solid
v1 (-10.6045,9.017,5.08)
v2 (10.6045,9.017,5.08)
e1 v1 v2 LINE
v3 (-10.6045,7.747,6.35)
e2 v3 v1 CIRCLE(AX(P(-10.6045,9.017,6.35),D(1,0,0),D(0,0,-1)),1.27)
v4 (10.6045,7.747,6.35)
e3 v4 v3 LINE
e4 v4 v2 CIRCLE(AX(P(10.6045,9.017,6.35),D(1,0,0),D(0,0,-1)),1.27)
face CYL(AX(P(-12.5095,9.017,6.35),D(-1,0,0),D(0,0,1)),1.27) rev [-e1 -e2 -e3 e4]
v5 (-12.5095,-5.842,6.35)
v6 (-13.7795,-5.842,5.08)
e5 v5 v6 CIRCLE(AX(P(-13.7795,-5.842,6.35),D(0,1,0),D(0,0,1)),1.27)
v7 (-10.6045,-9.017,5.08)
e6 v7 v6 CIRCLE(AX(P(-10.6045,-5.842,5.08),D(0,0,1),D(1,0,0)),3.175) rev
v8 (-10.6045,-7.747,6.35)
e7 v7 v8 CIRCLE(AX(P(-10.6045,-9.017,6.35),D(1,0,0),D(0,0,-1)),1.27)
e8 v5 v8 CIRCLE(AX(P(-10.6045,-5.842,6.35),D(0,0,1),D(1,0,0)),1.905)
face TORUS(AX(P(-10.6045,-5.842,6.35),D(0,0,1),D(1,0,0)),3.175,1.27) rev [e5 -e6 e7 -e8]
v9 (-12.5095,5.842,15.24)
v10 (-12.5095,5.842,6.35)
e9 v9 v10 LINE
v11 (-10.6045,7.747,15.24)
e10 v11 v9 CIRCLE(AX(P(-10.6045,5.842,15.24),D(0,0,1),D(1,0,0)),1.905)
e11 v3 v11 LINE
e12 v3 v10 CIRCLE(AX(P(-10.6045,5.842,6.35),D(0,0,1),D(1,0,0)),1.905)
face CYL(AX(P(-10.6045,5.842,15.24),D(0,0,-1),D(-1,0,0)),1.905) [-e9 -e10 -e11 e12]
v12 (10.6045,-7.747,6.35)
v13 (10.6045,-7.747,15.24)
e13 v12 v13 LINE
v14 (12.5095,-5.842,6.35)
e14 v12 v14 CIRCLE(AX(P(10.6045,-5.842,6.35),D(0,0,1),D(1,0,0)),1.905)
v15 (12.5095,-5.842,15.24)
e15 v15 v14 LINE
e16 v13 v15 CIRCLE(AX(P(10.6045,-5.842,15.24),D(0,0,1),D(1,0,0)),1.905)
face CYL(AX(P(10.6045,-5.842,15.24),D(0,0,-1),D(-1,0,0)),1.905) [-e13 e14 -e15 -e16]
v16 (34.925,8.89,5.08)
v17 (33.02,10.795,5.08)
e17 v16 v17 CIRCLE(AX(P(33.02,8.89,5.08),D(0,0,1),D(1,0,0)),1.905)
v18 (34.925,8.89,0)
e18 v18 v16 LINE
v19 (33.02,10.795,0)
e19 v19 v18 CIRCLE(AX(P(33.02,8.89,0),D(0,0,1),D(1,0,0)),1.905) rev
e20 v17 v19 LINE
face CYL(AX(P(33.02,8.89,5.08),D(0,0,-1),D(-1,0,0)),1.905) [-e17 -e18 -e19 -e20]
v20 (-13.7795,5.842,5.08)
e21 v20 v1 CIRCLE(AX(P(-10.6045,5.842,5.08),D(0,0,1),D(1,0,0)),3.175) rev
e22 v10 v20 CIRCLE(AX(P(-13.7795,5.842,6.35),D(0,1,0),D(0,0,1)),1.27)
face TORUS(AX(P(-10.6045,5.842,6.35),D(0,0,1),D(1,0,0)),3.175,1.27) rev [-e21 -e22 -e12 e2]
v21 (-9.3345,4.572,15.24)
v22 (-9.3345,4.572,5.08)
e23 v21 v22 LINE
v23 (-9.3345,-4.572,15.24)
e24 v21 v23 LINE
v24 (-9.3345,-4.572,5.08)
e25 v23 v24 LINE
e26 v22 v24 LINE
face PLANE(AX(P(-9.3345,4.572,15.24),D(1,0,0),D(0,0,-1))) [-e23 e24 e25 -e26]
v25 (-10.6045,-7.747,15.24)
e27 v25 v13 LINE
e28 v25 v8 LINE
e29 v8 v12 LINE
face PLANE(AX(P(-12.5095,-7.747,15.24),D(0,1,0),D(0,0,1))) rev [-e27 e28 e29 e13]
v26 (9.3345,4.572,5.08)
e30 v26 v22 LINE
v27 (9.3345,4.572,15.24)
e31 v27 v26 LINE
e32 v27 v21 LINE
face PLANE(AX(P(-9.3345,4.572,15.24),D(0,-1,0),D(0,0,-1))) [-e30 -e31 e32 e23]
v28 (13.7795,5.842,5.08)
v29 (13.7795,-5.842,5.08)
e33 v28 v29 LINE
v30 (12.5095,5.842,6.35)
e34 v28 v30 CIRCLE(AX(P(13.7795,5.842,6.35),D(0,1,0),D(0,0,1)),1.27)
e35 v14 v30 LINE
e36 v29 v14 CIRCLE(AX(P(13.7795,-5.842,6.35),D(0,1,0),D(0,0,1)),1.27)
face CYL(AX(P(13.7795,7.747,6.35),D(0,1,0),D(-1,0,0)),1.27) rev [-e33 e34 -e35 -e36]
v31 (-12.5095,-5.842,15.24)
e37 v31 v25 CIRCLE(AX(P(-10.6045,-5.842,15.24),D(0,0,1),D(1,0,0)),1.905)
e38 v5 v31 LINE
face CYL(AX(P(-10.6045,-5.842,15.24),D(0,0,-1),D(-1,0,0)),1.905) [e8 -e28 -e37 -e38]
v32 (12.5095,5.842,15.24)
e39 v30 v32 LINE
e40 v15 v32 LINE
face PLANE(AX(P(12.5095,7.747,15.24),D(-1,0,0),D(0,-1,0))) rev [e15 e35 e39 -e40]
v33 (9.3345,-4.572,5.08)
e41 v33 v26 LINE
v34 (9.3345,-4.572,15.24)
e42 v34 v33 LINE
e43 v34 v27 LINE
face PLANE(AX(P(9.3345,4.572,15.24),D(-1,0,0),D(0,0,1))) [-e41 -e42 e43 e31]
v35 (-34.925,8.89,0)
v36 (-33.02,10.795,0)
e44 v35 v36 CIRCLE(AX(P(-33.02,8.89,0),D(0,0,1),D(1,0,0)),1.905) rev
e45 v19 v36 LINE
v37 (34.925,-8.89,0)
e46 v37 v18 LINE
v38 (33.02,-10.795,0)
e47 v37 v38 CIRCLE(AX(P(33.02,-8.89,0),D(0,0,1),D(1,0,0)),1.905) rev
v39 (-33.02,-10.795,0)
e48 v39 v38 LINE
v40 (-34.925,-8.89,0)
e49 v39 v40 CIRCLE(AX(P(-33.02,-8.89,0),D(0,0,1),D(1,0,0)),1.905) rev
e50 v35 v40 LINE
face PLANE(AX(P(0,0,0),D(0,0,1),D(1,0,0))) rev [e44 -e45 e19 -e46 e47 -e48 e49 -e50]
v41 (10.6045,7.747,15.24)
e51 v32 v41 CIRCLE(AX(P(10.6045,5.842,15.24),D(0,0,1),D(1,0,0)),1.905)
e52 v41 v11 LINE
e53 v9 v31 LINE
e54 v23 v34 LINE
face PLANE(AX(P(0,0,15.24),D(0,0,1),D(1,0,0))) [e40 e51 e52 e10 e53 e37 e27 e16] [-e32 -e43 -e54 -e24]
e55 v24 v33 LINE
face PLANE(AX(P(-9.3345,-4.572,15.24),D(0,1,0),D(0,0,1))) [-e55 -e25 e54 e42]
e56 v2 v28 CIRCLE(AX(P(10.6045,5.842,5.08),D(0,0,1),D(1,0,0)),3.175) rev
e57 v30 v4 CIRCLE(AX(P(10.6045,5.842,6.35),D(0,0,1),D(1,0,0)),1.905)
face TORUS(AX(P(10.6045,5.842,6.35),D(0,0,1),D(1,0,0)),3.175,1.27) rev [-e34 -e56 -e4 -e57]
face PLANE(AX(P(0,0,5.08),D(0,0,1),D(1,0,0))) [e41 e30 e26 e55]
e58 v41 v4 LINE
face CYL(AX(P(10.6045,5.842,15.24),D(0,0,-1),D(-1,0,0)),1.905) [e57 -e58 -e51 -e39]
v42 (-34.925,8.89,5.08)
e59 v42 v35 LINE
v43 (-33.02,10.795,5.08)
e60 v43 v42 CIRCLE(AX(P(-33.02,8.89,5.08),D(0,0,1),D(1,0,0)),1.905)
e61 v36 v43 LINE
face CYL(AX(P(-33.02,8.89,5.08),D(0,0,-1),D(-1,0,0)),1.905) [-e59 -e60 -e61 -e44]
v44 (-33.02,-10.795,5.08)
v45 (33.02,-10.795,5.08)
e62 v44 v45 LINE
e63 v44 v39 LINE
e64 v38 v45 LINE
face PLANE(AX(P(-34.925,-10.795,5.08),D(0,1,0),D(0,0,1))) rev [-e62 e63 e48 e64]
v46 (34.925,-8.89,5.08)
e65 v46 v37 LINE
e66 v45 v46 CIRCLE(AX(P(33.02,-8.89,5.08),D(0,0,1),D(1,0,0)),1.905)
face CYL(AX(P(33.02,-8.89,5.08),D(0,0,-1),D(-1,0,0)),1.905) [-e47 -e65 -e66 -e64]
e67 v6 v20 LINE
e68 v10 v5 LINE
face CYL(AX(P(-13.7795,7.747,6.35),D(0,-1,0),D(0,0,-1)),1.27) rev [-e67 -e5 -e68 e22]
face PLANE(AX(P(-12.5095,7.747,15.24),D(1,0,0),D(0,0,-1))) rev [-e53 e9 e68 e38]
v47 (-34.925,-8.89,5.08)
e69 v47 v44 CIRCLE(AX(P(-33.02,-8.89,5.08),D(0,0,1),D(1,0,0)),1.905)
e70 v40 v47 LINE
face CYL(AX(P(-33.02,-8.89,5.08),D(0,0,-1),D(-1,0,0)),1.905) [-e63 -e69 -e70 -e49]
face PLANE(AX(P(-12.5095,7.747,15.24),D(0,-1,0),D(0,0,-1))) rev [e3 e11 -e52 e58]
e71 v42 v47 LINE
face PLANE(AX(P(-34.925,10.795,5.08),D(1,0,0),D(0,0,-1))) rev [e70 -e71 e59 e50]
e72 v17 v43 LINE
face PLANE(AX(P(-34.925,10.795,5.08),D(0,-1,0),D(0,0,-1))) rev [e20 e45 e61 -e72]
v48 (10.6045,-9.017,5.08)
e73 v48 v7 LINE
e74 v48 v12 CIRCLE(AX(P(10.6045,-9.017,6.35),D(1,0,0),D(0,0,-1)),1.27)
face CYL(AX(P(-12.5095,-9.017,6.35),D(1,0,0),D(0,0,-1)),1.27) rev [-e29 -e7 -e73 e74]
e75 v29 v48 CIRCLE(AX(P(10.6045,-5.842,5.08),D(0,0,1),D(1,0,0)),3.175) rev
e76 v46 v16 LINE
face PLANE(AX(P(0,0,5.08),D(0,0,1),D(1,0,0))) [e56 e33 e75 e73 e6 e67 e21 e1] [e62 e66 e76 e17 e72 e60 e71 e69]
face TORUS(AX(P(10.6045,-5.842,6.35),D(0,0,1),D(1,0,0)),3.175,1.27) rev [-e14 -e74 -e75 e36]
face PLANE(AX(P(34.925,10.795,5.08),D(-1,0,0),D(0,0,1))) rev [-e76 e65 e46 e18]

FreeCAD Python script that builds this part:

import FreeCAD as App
import Part
import Sketcher

V = App.Vector
Q = App.Units.Quantity


def edges_at(feature, points):
    """Names of the edges that pass closest to the given points."""
    edges = feature.Shape.Edges
    near = lambda p: min(range(len(edges)), key=lambda i: edges[i].distToShape(Part.Vertex(*p))[0])
    return sorted({f"Edge{near(p) + 1}" for p in points})


def add_polygon(sketch, points):
    """Adds a closed chain of lines whose ends are joined by coincident constraints."""
    first, n = sketch.GeometryCount, len(points)
    for a, b in zip(points, points[1:] + points[:1]):
        sketch.addGeometry(Part.LineSegment(App.Vector(*a, 0), App.Vector(*b, 0)), False)
    for i in range(n):
        sketch.addConstraint(Sketcher.Constraint("Coincident", first + i, 2, first + (i + 1) % n, 1))

doc = App.newDocument("Part")
params = doc.addObject("Spreadsheet::Sheet", "Params")
for row, (alias, value) in enumerate([
    ("sketch1_width", "2.75 in"),
    ("sketch1_height", "0.85 in"),
    ("pad1_length", "0.2 in"),
    ("sketch2_height", "0.61 in"),
    ("sketch2_height2", "0.36 in"),
    ("sketch2_width", "0.985 in"),
    ("sketch2_width2", "0.735 in"),
    ("pad2_length", "0.4 in"),
    ("fillet_radius", "0.075 in"),
    ("fillet2_radius", "0.05 in"),
], start=1):
    params.set(f"A{row}", alias)
    params.set(f"B{row}", "=" + value)
    params.setAlias(f"B{row}", alias)

body = doc.addObject("PartDesign::Body", "Body")

sketch1 = body.newObject("Sketcher::SketchObject", "Sketch")
sketch1.AttachmentSupport = (doc.getObject("XY_Plane"), [""])
sketch1.MapMode = "FlatFace"
add_polygon(sketch1, [(-34.925, 10.795), (-34.925, -10.795), (34.925, -10.795), (34.925, 10.795)])
sketch1.addConstraint([
    Sketcher.Constraint("Vertical", 0),
    Sketcher.Constraint("Horizontal", 1),
    Sketcher.Constraint("Vertical", 2),
    Sketcher.Constraint("Horizontal", 3),
    Sketcher.Constraint("Symmetric", 0, 2, 2, 2, -1, 1),
    Sketcher.Constraint("DistanceX", 1, 1, 1, 2, Q("2.75 in")),
    Sketcher.Constraint("DistanceY", 0, 2, 0, 1, Q("0.85 in")),
])
sketch1.setExpression("Constraints[9]", "Params.sketch1_width")
sketch1.setExpression("Constraints[10]", "Params.sketch1_height")
pad1 = body.newObject("PartDesign::Pad", "Pad")
pad1.Profile = sketch1
pad1.setExpression("Length", "Params.pad1_length")

sketch2 = body.newObject("Sketcher::SketchObject", "Sketch001")
sketch2.AttachmentSupport = (doc.getObject("XY_Plane"), [""])
sketch2.MapMode = "FlatFace"
sketch2.AttachmentOffset = App.Placement(V(0, 0, 0.2 * 25.4), App.Rotation())
add_polygon(sketch2, [(-12.5095, 7.747), (-12.5095, -7.747), (12.5095, -7.747), (12.5095, 7.747)])
add_polygon(sketch2, [(9.3345, -4.572), (-9.3345, -4.572), (-9.3345, 4.572), (9.3345, 4.572)])
sketch2.addConstraint([
    Sketcher.Constraint("Vertical", 0),
    Sketcher.Constraint("Horizontal", 1),
    Sketcher.Constraint("Vertical", 2),
    Sketcher.Constraint("Horizontal", 3),
    Sketcher.Constraint("Horizontal", 4),
    Sketcher.Constraint("Vertical", 5),
    Sketcher.Constraint("Horizontal", 6),
    Sketcher.Constraint("Vertical", 7),
    Sketcher.Constraint("Symmetric", 0, 2, 2, 2, -1, 1),
    Sketcher.Constraint("Symmetric", 4, 2, 6, 2, -1, 1),
    Sketcher.Constraint("DistanceY", 0, 2, 0, 1, Q("0.61 in")),
    Sketcher.Constraint("DistanceY", 5, 1, 5, 2, Q("0.36 in")),
    Sketcher.Constraint("DistanceX", 1, 1, 1, 2, Q("0.985 in")),
    Sketcher.Constraint("DistanceX", 4, 2, 4, 1, Q("0.735 in")),
])
sketch2.setExpression("Constraints[18]", "Params.sketch2_height")
sketch2.setExpression("Constraints[19]", "Params.sketch2_height2")
sketch2.setExpression("Constraints[20]", "Params.sketch2_width")
sketch2.setExpression("Constraints[21]", "Params.sketch2_width2")
pad2 = body.newObject("PartDesign::Pad", "Pad001")
pad2.Profile = sketch2
pad2.setExpression("Length", "Params.pad2_length")
doc.recompute()

fillet = body.newObject("PartDesign::Fillet", "Fillet")
fillet.Base = (pad2, edges_at(pad2, [
    (12.509, -7.747, 10.16),
    (12.509, 7.747, 10.16),
    (-12.509, 7.747, 10.16),
    (-12.509, -7.747, 10.16),
    (34.925, -10.795, 2.54),
    (-34.925, -10.795, 2.54),
    (-34.925, 10.795, 2.54),
    (34.925, 10.795, 2.54),
]))
fillet.setExpression("Radius", "Params.fillet_radius")
doc.recompute()

fillet2 = body.newObject("PartDesign::Fillet", "Fillet001")
fillet2.Base = (fillet, edges_at(fillet, [
    (-12.509, 0, 5.08),
    (0, 7.747, 5.08),
    (12.509, 0, 5.08),
    (0, -7.747, 5.08),
    (-11.952, 7.189, 5.08),
    (11.952, 7.189, 5.08),
    (11.952, -7.189, 5.08),
    (-11.952, -7.189, 5.08),
]))
fillet2.setExpression("Radius", "Params.fillet2_radius")

doc.recompute()
